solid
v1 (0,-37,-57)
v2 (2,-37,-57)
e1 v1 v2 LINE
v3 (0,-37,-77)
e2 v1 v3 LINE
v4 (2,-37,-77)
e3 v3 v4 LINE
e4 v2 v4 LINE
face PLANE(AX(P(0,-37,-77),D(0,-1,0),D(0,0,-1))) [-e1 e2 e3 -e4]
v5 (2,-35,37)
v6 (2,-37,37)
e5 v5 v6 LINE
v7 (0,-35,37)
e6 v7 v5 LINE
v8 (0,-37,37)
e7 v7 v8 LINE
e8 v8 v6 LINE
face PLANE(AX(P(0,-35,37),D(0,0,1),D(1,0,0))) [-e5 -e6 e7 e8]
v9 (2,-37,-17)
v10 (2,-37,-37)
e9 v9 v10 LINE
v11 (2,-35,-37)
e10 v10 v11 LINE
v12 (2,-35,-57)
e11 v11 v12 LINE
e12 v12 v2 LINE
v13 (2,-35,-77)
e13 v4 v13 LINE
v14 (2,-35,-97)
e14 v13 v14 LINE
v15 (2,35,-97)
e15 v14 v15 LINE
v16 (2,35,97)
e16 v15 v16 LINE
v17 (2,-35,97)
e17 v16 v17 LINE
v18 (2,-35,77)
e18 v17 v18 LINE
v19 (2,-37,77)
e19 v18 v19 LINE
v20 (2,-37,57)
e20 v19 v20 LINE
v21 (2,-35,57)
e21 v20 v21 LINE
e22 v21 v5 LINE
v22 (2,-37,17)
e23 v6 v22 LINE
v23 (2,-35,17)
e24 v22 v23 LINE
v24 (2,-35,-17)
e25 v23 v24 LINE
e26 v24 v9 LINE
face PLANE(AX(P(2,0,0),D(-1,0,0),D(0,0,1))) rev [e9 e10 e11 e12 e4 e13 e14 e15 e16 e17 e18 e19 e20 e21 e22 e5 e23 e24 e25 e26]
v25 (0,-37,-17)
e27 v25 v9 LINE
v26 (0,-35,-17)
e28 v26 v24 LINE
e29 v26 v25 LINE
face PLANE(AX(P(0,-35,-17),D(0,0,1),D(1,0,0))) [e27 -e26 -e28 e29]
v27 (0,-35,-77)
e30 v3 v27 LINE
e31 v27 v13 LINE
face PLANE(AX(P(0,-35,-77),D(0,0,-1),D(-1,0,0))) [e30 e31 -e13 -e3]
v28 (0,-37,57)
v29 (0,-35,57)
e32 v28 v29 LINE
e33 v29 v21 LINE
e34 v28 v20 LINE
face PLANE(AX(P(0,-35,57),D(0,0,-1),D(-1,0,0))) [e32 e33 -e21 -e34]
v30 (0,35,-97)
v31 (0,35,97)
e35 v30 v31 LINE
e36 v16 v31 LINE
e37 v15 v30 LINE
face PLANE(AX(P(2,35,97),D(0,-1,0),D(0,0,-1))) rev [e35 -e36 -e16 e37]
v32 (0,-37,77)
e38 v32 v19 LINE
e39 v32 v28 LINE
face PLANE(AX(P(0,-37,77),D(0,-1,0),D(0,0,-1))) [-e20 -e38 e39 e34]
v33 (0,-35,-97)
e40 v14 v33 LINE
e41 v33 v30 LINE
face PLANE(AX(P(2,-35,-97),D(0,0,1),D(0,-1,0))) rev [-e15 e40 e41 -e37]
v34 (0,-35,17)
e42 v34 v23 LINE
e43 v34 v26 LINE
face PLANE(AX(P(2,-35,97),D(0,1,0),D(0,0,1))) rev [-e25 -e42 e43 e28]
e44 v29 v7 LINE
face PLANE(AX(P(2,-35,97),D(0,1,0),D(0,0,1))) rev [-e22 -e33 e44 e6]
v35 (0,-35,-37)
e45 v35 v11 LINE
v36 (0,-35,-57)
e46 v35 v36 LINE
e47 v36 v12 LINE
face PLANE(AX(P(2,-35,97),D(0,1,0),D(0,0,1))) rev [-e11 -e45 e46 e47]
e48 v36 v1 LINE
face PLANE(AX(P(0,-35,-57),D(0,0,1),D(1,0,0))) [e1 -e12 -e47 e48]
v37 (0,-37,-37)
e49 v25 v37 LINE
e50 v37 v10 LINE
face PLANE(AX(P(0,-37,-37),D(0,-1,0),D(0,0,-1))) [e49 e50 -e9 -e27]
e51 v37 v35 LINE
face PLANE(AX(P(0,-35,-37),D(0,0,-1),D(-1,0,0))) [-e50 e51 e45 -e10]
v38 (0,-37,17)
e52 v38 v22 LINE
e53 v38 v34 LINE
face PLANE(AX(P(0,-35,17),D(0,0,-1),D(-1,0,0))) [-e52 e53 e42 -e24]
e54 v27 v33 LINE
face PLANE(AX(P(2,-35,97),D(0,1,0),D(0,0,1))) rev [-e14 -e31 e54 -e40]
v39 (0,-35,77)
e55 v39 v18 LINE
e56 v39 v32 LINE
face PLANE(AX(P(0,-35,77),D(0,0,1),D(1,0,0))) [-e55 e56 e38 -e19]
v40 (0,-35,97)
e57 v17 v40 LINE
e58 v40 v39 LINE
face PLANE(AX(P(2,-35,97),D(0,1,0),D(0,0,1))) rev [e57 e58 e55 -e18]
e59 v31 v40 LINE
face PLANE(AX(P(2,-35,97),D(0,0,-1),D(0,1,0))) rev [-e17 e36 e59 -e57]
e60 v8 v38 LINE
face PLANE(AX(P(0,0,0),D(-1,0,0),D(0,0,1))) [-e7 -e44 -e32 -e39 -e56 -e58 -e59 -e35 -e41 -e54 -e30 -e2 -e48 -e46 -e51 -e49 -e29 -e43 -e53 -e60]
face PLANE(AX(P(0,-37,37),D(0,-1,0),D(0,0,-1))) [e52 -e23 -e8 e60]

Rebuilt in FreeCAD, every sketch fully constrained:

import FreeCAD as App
import Part
import Sketcher

V = App.Vector
Q = App.Units.Quantity

doc = App.newDocument("Part")
params = doc.addObject("Spreadsheet::Sheet", "Params")
for row, (alias, value) in enumerate([
    ("sketch1_width", "35 mm"),
    ("sketch1_width2", "20 mm"),
    ("sketch1_height", "194 mm"),
    ("sketch1_height2", "2 mm"),
    ("pad1_length", "2 mm"),
    ("sketch2_width", "20 mm"),
    ("sketch2_height", "2 mm"),
    ("pocket1_length", "10 mm"),
    ("sketch3_width", "2 mm"),
    ("sketch3_height", "20 mm"),
    ("pad2_length", "2 mm"),
], start=1):
    params.set(f"A{row}", alias)
    params.set(f"B{row}", "=" + value)
    params.setAlias(f"B{row}", alias)

body = doc.addObject("PartDesign::Body", "Body")

# Sketch on YZ plane
sketch1 = body.newObject("Sketcher::SketchObject", "Sketch")
sketch1.AttachmentSupport = (doc.getObject("YZ_Plane"), [""])
sketch1.MapMode = "FlatFace"
sketch1.addGeometry(Part.LineSegment(V(-35, 97, 0), V(-35, -97, 0)), False)
sketch1.addGeometry(Part.LineSegment(V(-35, -97, 0), V(0, -97, 0)), False)
sketch1.addGeometry(Part.LineSegment(V(0, -97, 0), V(0, -99, 0)), False)
sketch1.addGeometry(Part.LineSegment(V(0, -99, 0), V(20, -99, 0)), False)
sketch1.addGeometry(Part.LineSegment(V(20, -99, 0), V(20, -97, 0)), False)
sketch1.addGeometry(Part.LineSegment(V(20, -97, 0), V(35, -97, 0)), False)
sketch1.addGeometry(Part.LineSegment(V(35, -97, 0), V(35, 97, 0)), False)
sketch1.addGeometry(Part.LineSegment(V(35, 97, 0), V(20, 97, 0)), False)
sketch1.addGeometry(Part.LineSegment(V(20, 97, 0), V(20, 99, 0)), False)
sketch1.addGeometry(Part.LineSegment(V(20, 99, 0), V(0, 99, 0)), False)
sketch1.addGeometry(Part.LineSegment(V(0, 99, 0), V(0, 97, 0)), False)
sketch1.addGeometry(Part.LineSegment(V(0, 97, 0), V(-35, 97, 0)), False)
sketch1.addConstraint(Sketcher.Constraint("Coincident", 0, 2, 1, 1))
sketch1.addConstraint(Sketcher.Constraint("Coincident", 1, 2, 2, 1))
sketch1.addConstraint(Sketcher.Constraint("Coincident", 2, 2, 3, 1))
sketch1.addConstraint(Sketcher.Constraint("Coincident", 3, 2, 4, 1))
sketch1.addConstraint(Sketcher.Constraint("Coincident", 4, 2, 5, 1))
sketch1.addConstraint(Sketcher.Constraint("Coincident", 5, 2, 6, 1))
sketch1.addConstraint(Sketcher.Constraint("Coincident", 6, 2, 7, 1))
sketch1.addConstraint(Sketcher.Constraint("Coincident", 7, 2, 8, 1))
sketch1.addConstraint(Sketcher.Constraint("Coincident", 8, 2, 9, 1))
sketch1.addConstraint(Sketcher.Constraint("Coincident", 9, 2, 10, 1))
sketch1.addConstraint(Sketcher.Constraint("Coincident", 10, 2, 11, 1))
sketch1.addConstraint(Sketcher.Constraint("Coincident", 11, 2, 0, 1))
sketch1.addConstraint(Sketcher.Constraint("Vertical", 0))
sketch1.addConstraint(Sketcher.Constraint("Horizontal", 1))
sketch1.addConstraint(Sketcher.Constraint("Vertical", 2))
sketch1.addConstraint(Sketcher.Constraint("Horizontal", 3))
sketch1.addConstraint(Sketcher.Constraint("Vertical", 4))
sketch1.addConstraint(Sketcher.Constraint("Horizontal", 5))
sketch1.addConstraint(Sketcher.Constraint("Vertical", 6))
sketch1.addConstraint(Sketcher.Constraint("Horizontal", 7))
sketch1.addConstraint(Sketcher.Constraint("Vertical", 8))
sketch1.addConstraint(Sketcher.Constraint("Horizontal", 9))
sketch1.addConstraint(Sketcher.Constraint("Vertical", 10))
sketch1.addConstraint(Sketcher.Constraint("Horizontal", 11))
sketch1.addConstraint(Sketcher.Constraint("Symmetric", 0, 2, 6, 2, -1, 1))
sketch1.addConstraint(Sketcher.Constraint("Symmetric", 2, 2, 9, 2, -1, 1))
sketch1.addConstraint(Sketcher.Constraint("Symmetric", 4, 2, 7, 2, -1))
sketch1.addConstraint(Sketcher.Constraint("Symmetric", 1, 2, 10, 2, -1))
sketch1.addConstraint(Sketcher.Constraint("DistanceX", 1, 1, 1, 2, Q("35 mm")))
sketch1.addConstraint(Sketcher.Constraint("DistanceX", 3, 1, 3, 2, Q("20 mm")))
sketch1.addConstraint(Sketcher.Constraint("DistanceY", 0, 2, 0, 1, Q("194 mm")))
sketch1.addConstraint(Sketcher.Constraint("DistanceY", 2, 2, 2, 1, Q("2 mm")))
sketch1.setExpression("Constraints[28]", "Params.sketch1_width")
sketch1.setExpression("Constraints[29]", "Params.sketch1_width2")
sketch1.setExpression("Constraints[30]", "Params.sketch1_height")
sketch1.setExpression("Constraints[31]", "Params.sketch1_height2")
pad1 = body.newObject("PartDesign::Pad", "Pad")
pad1.Profile = sketch1
pad1.setExpression("Length", "Params.pad1_length")

# Sketch on YZ plane
sketch2 = body.newObject("Sketcher::SketchObject", "Sketch001")
sketch2.AttachmentSupport = (doc.getObject("YZ_Plane"), [""])
sketch2.MapMode = "FlatFace"
sketch2.AttachmentOffset = App.Placement(V(0, 0, 2), App.Rotation())
sketch2.addGeometry(Part.LineSegment(V(20, 99, 0), V(0, 99, 0)), False)
sketch2.addGeometry(Part.LineSegment(V(0, 99, 0), V(0, 97, 0)), False)
sketch2.addGeometry(Part.LineSegment(V(0, 97, 0), V(20, 97, 0)), False)
sketch2.addGeometry(Part.LineSegment(V(20, 97, 0), V(20, 99, 0)), False)
sketch2.addGeometry(Part.LineSegment(V(20, -97, 0), V(0, -97, 0)), False)
sketch2.addGeometry(Part.LineSegment(V(0, -97, 0), V(0, -99, 0)), False)
sketch2.addGeometry(Part.LineSegment(V(0, -99, 0), V(20, -99, 0)), False)
sketch2.addGeometry(Part.LineSegment(V(20, -99, 0), V(20, -97, 0)), False)
sketch2.addConstraint(Sketcher.Constraint("Coincident", 0, 2, 1, 1))
sketch2.addConstraint(Sketcher.Constraint("Coincident", 1, 2, 2, 1))
sketch2.addConstraint(Sketcher.Constraint("Coincident", 2, 2, 3, 1))
sketch2.addConstraint(Sketcher.Constraint("Coincident", 3, 2, 0, 1))
sketch2.addConstraint(Sketcher.Constraint("Coincident", 4, 2, 5, 1))
sketch2.addConstraint(Sketcher.Constraint("Coincident", 5, 2, 6, 1))
sketch2.addConstraint(Sketcher.Constraint("Coincident", 6, 2, 7, 1))
sketch2.addConstraint(Sketcher.Constraint("Coincident", 7, 2, 4, 1))
sketch2.addConstraint(Sketcher.Constraint("Horizontal", 0))
sketch2.addConstraint(Sketcher.Constraint("Vertical", 1))
sketch2.addConstraint(Sketcher.Constraint("Horizontal", 2))
sketch2.addConstraint(Sketcher.Constraint("Vertical", 3))
sketch2.addConstraint(Sketcher.Constraint("Horizontal", 4))
sketch2.addConstraint(Sketcher.Constraint("Vertical", 5))
sketch2.addConstraint(Sketcher.Constraint("Horizontal", 6))
sketch2.addConstraint(Sketcher.Constraint("Vertical", 7))
sketch2.addConstraint(Sketcher.Constraint("Symmetric", 1, 2, 4, 2, -1, 1))
sketch2.addConstraint(Sketcher.Constraint("Symmetric", 0, 2, 5, 2, -1))
sketch2.addConstraint(Sketcher.Constraint("Vertical", 3, 2, 6, 2))
sketch2.addConstraint(Sketcher.Constraint("DistanceX", 0, 2, 0, 1, Q("20 mm")))
sketch2.addConstraint(Sketcher.Constraint("DistanceY", 1, 2, 1, 1, Q("2 mm")))
sketch2.addConstraint(Sketcher.Constraint("DistanceY", -1, 1, 0, 2, Q("99 mm")))
sketch2.setExpression("Constraints[19]", "Params.sketch2_width")
sketch2.setExpression("Constraints[20]", "Params.sketch2_height")
pocket1 = body.newObject("PartDesign::Pocket", "Pocket")
pocket1.Profile = sketch2
pocket1.setExpression("Length", "Params.pocket1_length")

# Sketch on YZ plane
sketch3 = body.newObject("Sketcher::SketchObject", "Sketch002")
sketch3.AttachmentSupport = (doc.getObject("YZ_Plane"), [""])
sketch3.MapMode = "FlatFace"
sketch3.AttachmentOffset = App.Placement(V(0, 0, 2), App.Rotation())
sketch3.addGeometry(Part.LineSegment(V(-35, 77, 0), V(-37, 77, 0)), False)
sketch3.addGeometry(Part.LineSegment(V(-37, 77, 0), V(-37, 57, 0)), False)
sketch3.addGeometry(Part.LineSegment(V(-37, 57, 0), V(-35, 57, 0)), False)
sketch3.addGeometry(Part.LineSegment(V(-35, 57, 0), V(-35, 77, 0)), False)
sketch3.addGeometry(Part.LineSegment(V(-35, 37, 0), V(-37, 37, 0)), False)
sketch3.addGeometry(Part.LineSegment(V(-37, 37, 0), V(-37, 17, 0)), False)
sketch3.addGeometry(Part.LineSegment(V(-37, 17, 0), V(-35, 17, 0)), False)
sketch3.addGeometry(Part.LineSegment(V(-35, 17, 0), V(-35, 37, 0)), False)
sketch3.addGeometry(Part.LineSegment(V(-35, -17, 0), V(-37, -17, 0)), False)
sketch3.addGeometry(Part.LineSegment(V(-37, -17, 0), V(-37, -37, 0)), False)
sketch3.addGeometry(Part.LineSegment(V(-37, -37, 0), V(-35, -37, 0)), False)
sketch3.addGeometry(Part.LineSegment(V(-35, -37, 0), V(-35, -17, 0)), False)
sketch3.addGeometry(Part.LineSegment(V(-35, -57, 0), V(-37, -57, 0)), False)
sketch3.addGeometry(Part.LineSegment(V(-37, -57, 0), V(-37, -77, 0)), False)
sketch3.addGeometry(Part.LineSegment(V(-37, -77, 0), V(-35, -77, 0)), False)
sketch3.addGeometry(Part.LineSegment(V(-35, -77, 0), V(-35, -57, 0)), False)
sketch3.addConstraint(Sketcher.Constraint("Coincident", 0, 2, 1, 1))
sketch3.addConstraint(Sketcher.Constraint("Coincident", 1, 2, 2, 1))
sketch3.addConstraint(Sketcher.Constraint("Coincident", 2, 2, 3, 1))
sketch3.addConstraint(Sketcher.Constraint("Coincident", 3, 2, 0, 1))
sketch3.addConstraint(Sketcher.Constraint("Coincident", 4, 2, 5, 1))
sketch3.addConstraint(Sketcher.Constraint("Coincident", 5, 2, 6, 1))
sketch3.addConstraint(Sketcher.Constraint("Coincident", 6, 2, 7, 1))
sketch3.addConstraint(Sketcher.Constraint("Coincident", 7, 2, 4, 1))
sketch3.addConstraint(Sketcher.Constraint("Coincident", 8, 2, 9, 1))
sketch3.addConstraint(Sketcher.Constraint("Coincident", 9, 2, 10, 1))
sketch3.addConstraint(Sketcher.Constraint("Coincident", 10, 2, 11, 1))
sketch3.addConstraint(Sketcher.Constraint("Coincident", 11, 2, 8, 1))
sketch3.addConstraint(Sketcher.Constraint("Coincident", 12, 2, 13, 1))
sketch3.addConstraint(Sketcher.Constraint("Coincident", 13, 2, 14, 1))
sketch3.addConstraint(Sketcher.Constraint("Coincident", 14, 2, 15, 1))
sketch3.addConstraint(Sketcher.Constraint("Coincident", 15, 2, 12, 1))
sketch3.addConstraint(Sketcher.Constraint("Horizontal", 0))
sketch3.addConstraint(Sketcher.Constraint("Vertical", 1))
sketch3.addConstraint(Sketcher.Constraint("Horizontal", 2))
sketch3.addConstraint(Sketcher.Constraint("Vertical", 3))
sketch3.addConstraint(Sketcher.Constraint("Horizontal", 4))
sketch3.addConstraint(Sketcher.Constraint("Vertical", 5))
sketch3.addConstraint(Sketcher.Constraint("Horizontal", 6))
sketch3.addConstraint(Sketcher.Constraint("Vertical", 7))
sketch3.addConstraint(Sketcher.Constraint("Horizontal", 8))
sketch3.addConstraint(Sketcher.Constraint("Vertical", 9))
sketch3.addConstraint(Sketcher.Constraint("Horizontal", 10))
sketch3.addConstraint(Sketcher.Constraint("Vertical", 11))
sketch3.addConstraint(Sketcher.Constraint("Horizontal", 12))
sketch3.addConstraint(Sketcher.Constraint("Vertical", 13))
sketch3.addConstraint(Sketcher.Constraint("Horizontal", 14))
sketch3.addConstraint(Sketcher.Constraint("Vertical", 15))
sketch3.addConstraint(Sketcher.Constraint("Symmetric", 5, 2, 8, 2, -1))
sketch3.addConstraint(Sketcher.Constraint("Symmetric", 7, 2, 10, 2, -1))
sketch3.addConstraint(Sketcher.Constraint("Symmetric", 1, 2, 12, 2, -1))
sketch3.addConstraint(Sketcher.Constraint("Symmetric", 3, 2, 14, 2, -1))
sketch3.addConstraint(Sketcher.Constraint("Vertical", 1, 2, 4, 2))
sketch3.addConstraint(Sketcher.Constraint("Vertical", 3, 2, 6, 2))
sketch3.addConstraint(Sketcher.Constraint("Equal", 3, 5))
sketch3.addConstraint(Sketcher.Constraint("DistanceX", 0, 2, 0, 1, Q("2 mm")))
sketch3.addConstraint(Sketcher.Constraint("DistanceY", 1, 2, 1, 1, Q("20 mm")))
sketch3.addConstraint(Sketcher.Constraint("DistanceX", 0, 2, -1, 1, Q("37 mm")))
sketch3.addConstraint(Sketcher.Constraint("DistanceY", -1, 1, 0, 2, Q("77 mm")))
sketch3.addConstraint(Sketcher.Constraint("DistanceY", -1, 1, 4, 2, Q("37 mm")))
sketch3.setExpression("Constraints[39]", "Params.sketch3_width")
sketch3.setExpression("Constraints[40]", "Params.sketch3_height")
pad2 = body.newObject("PartDesign::Pad", "Pad001")
pad2.Profile = sketch3
pad2.setExpression("Length", "Params.pad2_length")
pad2.Reversed = True

doc.recompute()
